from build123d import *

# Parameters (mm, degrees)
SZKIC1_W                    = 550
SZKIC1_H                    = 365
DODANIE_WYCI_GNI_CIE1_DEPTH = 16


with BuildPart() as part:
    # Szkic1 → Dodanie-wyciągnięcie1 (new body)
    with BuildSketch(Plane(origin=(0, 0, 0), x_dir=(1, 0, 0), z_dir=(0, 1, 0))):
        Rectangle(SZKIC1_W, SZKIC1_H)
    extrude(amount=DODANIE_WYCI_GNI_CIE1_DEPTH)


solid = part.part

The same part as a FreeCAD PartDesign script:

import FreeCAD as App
import Part
import Sketcher
from FreeCAD import Vector


def add_polygon(sketch, points):
    """Adds a closed chain of lines whose ends are joined by coincident constraints."""
    first, n = sketch.GeometryCount, len(points)
    for a, b in zip(points, points[1:] + points[:1]):
        sketch.addGeometry(Part.LineSegment(App.Vector(*a, 0), App.Vector(*b, 0)), False)
    for i in range(n):
        sketch.addConstraint(Sketcher.Constraint("Coincident", first + i, 2, first + (i + 1) % n, 1))

doc = App.newDocument("Part")
body = doc.addObject("PartDesign::Body", "Body")

sketch1 = doc.addObject("Sketcher::SketchObject", "Sketch")
body.addObject(sketch1)
sketch1.AttachmentSupport = (doc.XZ_Plane, [""])
sketch1.MapMode = "FlatFace"
add_polygon(sketch1, [(-275, -182), (-275, 182), (275, 182), (275, -182)])
sketch1.addConstraint([
    Sketcher.Constraint("Vertical", 0),
    Sketcher.Constraint("Horizontal", 1),
    Sketcher.Constraint("Vertical", 2),
    Sketcher.Constraint("Horizontal", 3),
    Sketcher.Constraint("Symmetric", 0, 2, 2, 2, -1, 1),
    Sketcher.Constraint("DistanceX", 1, 1, 1, 2, 550.0),
    Sketcher.Constraint("DistanceY", 0, 1, 0, 2, 365.0),
])
pad1 = doc.addObject("PartDesign::Pad", "Pad")
body.addObject(pad1)
pad1.Profile = sketch1
pad1.Length = 16
pad1.Reversed = True

doc.recompute()
